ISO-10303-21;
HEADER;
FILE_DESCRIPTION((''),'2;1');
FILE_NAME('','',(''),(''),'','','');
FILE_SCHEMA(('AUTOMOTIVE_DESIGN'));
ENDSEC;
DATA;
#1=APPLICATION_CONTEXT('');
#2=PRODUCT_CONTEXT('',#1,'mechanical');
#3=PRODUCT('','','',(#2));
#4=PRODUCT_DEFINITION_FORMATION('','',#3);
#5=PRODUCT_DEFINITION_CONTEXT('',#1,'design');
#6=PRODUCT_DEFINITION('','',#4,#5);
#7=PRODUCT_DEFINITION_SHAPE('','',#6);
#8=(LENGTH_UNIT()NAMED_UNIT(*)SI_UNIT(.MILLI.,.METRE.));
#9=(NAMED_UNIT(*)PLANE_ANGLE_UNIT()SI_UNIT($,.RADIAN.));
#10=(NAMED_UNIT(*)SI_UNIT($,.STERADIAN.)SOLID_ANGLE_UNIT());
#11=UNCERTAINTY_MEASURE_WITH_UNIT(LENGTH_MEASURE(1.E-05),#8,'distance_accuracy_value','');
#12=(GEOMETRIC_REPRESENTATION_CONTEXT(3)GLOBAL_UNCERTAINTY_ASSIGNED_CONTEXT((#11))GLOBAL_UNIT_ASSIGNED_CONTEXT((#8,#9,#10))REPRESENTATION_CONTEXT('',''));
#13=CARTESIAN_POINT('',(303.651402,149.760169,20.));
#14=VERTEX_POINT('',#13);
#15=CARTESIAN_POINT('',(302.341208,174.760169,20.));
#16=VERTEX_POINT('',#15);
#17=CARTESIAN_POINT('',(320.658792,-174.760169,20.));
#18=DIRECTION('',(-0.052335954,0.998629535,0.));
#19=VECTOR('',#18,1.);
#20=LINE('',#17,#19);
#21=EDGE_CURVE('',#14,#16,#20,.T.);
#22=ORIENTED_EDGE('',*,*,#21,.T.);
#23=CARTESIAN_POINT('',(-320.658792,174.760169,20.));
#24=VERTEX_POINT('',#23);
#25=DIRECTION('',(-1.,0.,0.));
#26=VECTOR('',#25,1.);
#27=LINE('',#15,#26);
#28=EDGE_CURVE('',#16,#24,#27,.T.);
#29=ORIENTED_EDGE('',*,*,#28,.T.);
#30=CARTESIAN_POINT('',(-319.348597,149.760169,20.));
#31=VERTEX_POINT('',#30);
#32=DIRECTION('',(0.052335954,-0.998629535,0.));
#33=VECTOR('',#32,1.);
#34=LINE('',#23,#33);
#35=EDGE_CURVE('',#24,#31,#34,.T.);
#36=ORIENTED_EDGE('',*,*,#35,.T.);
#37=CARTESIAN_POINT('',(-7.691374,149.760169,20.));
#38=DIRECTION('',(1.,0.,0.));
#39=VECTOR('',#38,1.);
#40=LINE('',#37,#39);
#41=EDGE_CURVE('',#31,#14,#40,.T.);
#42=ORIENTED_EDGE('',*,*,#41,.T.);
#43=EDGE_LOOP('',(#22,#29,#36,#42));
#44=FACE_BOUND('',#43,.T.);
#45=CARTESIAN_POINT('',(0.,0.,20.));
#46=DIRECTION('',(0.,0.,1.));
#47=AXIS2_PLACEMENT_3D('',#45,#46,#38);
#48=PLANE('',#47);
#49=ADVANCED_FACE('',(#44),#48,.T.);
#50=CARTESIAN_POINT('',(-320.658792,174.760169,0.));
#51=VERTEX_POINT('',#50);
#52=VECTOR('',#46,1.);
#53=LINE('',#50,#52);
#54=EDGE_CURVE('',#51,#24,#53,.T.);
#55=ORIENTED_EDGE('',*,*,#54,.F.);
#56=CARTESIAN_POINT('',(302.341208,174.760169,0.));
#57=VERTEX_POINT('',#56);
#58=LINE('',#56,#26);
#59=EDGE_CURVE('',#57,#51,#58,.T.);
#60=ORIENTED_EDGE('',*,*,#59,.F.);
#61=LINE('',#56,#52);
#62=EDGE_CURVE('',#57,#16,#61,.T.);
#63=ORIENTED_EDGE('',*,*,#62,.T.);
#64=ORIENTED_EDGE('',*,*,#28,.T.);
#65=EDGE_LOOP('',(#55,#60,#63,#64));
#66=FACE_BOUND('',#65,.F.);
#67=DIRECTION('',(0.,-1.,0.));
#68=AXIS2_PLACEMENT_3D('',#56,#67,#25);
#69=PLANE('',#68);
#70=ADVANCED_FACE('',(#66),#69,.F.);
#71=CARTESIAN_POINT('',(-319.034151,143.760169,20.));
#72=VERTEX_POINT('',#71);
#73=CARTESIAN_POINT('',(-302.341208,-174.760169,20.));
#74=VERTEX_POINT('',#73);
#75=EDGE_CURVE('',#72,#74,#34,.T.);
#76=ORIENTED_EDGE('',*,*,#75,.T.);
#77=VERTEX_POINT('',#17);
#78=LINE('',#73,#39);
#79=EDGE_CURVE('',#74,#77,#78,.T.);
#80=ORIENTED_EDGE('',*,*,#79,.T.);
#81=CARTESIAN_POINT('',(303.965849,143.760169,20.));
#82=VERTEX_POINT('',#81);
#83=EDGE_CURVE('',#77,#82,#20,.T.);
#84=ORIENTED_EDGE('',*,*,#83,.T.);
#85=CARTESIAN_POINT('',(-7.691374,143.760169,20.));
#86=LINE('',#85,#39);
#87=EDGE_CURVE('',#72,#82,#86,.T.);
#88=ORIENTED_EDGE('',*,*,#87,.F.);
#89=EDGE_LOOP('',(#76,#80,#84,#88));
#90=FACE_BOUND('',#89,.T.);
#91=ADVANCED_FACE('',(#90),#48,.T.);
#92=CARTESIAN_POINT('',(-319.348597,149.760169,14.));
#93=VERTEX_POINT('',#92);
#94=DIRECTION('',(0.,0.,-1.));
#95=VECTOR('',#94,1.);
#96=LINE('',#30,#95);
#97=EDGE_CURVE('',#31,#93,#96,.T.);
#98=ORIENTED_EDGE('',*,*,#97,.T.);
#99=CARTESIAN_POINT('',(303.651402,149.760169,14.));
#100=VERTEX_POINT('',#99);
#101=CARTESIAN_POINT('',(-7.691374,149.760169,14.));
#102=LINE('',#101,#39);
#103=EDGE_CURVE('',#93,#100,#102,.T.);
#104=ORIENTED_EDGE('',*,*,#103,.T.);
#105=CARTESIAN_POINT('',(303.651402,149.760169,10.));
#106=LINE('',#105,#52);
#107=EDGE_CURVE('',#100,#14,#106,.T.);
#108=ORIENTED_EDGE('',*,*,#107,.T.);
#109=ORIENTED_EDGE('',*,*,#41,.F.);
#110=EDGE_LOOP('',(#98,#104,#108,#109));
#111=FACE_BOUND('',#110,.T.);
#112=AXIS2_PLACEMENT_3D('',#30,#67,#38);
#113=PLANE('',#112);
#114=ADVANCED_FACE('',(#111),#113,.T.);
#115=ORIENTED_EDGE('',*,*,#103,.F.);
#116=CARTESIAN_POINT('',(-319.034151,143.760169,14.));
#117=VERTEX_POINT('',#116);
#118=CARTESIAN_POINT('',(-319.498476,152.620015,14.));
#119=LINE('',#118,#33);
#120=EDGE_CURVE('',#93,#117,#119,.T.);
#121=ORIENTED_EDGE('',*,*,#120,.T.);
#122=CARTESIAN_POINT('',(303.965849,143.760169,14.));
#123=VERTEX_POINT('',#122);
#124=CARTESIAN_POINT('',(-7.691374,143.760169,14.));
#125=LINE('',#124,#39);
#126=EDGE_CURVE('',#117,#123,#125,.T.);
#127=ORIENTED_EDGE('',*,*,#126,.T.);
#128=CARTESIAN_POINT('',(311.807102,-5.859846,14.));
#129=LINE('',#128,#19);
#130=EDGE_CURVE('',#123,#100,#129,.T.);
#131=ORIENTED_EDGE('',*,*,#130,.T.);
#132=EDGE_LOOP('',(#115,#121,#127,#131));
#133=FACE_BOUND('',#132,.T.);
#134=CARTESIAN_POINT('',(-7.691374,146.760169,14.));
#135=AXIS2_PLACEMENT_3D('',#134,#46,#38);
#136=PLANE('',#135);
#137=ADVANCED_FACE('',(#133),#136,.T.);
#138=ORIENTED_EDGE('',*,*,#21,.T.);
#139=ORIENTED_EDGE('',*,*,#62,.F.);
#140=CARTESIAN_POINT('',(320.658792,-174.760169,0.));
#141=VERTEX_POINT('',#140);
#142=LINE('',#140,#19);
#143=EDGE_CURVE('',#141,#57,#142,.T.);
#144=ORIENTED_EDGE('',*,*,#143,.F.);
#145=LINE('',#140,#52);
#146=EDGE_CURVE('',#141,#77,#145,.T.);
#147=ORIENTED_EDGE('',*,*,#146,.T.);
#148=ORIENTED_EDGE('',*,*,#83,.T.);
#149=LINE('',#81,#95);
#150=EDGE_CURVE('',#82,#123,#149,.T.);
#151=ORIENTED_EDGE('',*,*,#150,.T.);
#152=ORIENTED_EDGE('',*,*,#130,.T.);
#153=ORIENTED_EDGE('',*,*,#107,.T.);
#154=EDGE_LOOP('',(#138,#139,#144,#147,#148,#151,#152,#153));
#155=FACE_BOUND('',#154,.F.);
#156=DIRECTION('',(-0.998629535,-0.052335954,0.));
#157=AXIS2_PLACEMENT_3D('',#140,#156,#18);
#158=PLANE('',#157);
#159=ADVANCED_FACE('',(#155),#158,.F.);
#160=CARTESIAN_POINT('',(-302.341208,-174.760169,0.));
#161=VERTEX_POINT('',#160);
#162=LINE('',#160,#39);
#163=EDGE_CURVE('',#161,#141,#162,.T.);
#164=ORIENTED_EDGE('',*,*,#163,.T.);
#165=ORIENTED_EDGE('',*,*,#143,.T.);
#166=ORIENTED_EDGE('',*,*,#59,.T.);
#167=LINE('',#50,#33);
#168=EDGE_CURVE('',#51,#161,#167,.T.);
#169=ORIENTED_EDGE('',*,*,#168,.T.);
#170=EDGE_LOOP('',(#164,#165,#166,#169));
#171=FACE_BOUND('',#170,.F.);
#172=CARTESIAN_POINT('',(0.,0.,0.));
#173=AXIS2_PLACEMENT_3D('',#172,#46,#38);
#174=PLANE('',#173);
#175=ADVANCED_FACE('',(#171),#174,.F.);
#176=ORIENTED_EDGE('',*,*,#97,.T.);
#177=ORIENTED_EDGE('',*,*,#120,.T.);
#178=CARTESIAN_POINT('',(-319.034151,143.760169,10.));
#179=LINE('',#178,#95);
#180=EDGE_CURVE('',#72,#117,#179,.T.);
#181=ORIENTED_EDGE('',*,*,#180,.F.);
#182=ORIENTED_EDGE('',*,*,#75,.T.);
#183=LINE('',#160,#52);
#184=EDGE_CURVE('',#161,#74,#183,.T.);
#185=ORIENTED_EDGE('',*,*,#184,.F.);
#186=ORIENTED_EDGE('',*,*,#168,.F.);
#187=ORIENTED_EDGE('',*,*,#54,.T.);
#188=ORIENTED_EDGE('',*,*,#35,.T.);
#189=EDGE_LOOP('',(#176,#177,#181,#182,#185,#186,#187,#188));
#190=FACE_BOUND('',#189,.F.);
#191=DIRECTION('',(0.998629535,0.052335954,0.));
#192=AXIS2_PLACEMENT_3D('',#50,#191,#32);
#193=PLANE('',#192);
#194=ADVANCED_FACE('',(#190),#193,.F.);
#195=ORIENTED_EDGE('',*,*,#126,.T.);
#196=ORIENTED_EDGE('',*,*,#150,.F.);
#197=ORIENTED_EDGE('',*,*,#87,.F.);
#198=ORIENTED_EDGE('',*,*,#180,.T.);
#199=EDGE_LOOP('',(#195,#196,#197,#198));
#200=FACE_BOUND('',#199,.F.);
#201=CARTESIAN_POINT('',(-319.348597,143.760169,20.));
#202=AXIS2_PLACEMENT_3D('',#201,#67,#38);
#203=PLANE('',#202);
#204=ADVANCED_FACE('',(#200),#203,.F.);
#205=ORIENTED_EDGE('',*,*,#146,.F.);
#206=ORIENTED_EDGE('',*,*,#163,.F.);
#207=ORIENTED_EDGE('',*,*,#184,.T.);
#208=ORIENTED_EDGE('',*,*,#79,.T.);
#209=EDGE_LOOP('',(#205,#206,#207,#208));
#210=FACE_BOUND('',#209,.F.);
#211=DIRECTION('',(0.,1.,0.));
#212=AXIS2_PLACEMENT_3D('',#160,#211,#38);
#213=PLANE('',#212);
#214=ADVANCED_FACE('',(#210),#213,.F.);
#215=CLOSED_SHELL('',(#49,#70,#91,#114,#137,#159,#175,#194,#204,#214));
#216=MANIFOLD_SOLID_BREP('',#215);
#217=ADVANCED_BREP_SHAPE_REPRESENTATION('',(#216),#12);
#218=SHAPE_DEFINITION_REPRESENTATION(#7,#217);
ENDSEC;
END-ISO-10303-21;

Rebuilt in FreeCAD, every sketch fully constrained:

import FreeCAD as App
import Part
import Sketcher

V = App.Vector
Q = App.Units.Quantity


def add_polygon(sketch, points):
    """Adds a closed chain of lines whose ends are joined by coincident constraints."""
    first, n = sketch.GeometryCount, len(points)
    for a, b in zip(points, points[1:] + points[:1]):
        sketch.addGeometry(Part.LineSegment(App.Vector(*a, 0), App.Vector(*b, 0)), False)
    for i in range(n):
        sketch.addConstraint(Sketcher.Constraint("Coincident", first + i, 2, first + (i + 1) % n, 1))

doc = App.newDocument("Part")
params = doc.addObject("Spreadsheet::Sheet", "Params")
for row, (alias, value) in enumerate([
    ("sketch1_width", "623 mm"),
    ("sketch1_length", "350.000001 mm"),
    ("pad1_length", "20 mm"),
    ("sketch2_height", "6 mm"),
    ("pocket1_length", "6 mm"),
], start=1):
    params.set(f"A{row}", alias)
    params.set(f"B{row}", "=" + value)
    params.setAlias(f"B{row}", alias)

body = doc.addObject("PartDesign::Body", "Body")

# Sketch on XY plane
sketch1 = body.newObject("Sketcher::SketchObject", "Sketch")
sketch1.AttachmentSupport = (doc.getObject("XY_Plane"), [""])
sketch1.MapMode = "FlatFace"
add_polygon(sketch1, [(-302, -175), (321, -175), (302, 175), (-321, 175)])  # lines 0-3
sketch1.addConstraint([
    Sketcher.Constraint("Horizontal", 0),
    Sketcher.Constraint("Horizontal", 2),
    Sketcher.Constraint("Symmetric", 0, 2, 2, 2, -1, 1),
    Sketcher.Constraint("Parallel", 1, 3),
    Sketcher.Constraint("DistanceX", 0, 1, 0, 2, 623.0),
    Sketcher.Constraint("Angle", 1, Q("93 deg")),
    Sketcher.Constraint("Distance", 1, 350.000001),
])
sketch1.setExpression("Constraints[8]", "Params.sketch1_width")
sketch1.setExpression("Constraints[10]", "Params.sketch1_length")
pad1 = body.newObject("PartDesign::Pad", "Pad")
pad1.Profile = sketch1
pad1.setExpression("Length", "Params.pad1_length")

# Sketch on XY plane
sketch2 = body.newObject("Sketcher::SketchObject", "Sketch001")
sketch2.AttachmentSupport = (doc.getObject("XY_Plane"), [""])
sketch2.MapMode = "FlatFace"
sketch2.AttachmentOffset = App.Placement(V(0, 0, 20), App.Rotation())
add_polygon(sketch2, [(-319, 150), (-319, 144), (304, 144), (304, 150)])  # lines 0-3
sketch2.addConstraint([
    Sketcher.Constraint("Vertical", 0),
    Sketcher.Constraint("Horizontal", 1),
    Sketcher.Constraint("Vertical", 2),
    Sketcher.Constraint("Horizontal", 3),
    Sketcher.Constraint("DistanceY", 0, 2, 0, 1, 6.0),
    Sketcher.Constraint("DistanceX", 1, 1, 1, 2, 623.314447),
    Sketcher.Constraint("DistanceY", -1, 1, 0, 2, 143.760169),
    Sketcher.Constraint("DistanceX", -1, 1, 1, 2, 303.965849),
])
sketch2.setExpression("Constraints[8]", "Params.sketch2_height")
pocket1 = body.newObject("PartDesign::Pocket", "Pocket")
pocket1.Profile = sketch2
pocket1.setExpression("Length", "Params.pocket1_length")

doc.recompute()
